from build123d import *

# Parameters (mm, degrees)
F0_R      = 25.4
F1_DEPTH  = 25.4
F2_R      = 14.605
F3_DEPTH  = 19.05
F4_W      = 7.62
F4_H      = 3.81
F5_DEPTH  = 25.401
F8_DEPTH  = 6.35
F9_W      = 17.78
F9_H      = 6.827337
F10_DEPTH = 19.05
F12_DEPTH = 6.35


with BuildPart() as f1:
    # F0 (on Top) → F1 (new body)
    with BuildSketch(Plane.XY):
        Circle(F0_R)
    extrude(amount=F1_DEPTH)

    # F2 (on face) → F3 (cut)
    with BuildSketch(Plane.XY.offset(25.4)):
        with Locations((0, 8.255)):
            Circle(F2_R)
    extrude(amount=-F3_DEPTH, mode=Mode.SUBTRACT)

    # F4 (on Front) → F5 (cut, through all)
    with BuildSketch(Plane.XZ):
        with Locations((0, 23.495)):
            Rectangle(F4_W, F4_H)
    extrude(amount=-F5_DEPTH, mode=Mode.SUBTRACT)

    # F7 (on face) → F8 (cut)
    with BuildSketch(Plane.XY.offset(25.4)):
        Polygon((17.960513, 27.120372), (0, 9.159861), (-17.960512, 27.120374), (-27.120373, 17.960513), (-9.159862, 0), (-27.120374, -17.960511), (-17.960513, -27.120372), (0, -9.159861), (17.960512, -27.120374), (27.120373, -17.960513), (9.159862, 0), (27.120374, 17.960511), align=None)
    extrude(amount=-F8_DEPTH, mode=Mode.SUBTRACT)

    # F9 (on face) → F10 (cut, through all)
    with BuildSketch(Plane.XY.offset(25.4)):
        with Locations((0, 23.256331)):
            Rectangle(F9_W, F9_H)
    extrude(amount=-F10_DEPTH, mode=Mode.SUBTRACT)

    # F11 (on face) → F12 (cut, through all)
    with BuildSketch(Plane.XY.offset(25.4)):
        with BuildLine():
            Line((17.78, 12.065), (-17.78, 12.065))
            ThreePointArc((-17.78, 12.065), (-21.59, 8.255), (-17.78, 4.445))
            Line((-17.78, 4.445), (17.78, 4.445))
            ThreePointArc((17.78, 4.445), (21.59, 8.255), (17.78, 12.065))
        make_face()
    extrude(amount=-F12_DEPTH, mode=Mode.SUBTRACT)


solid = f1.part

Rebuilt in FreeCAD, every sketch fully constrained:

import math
import FreeCAD as App
import Part
import Sketcher
from FreeCAD import Vector
Q = App.Units.Quantity


def add_polygon(sketch, points):
    """Adds a closed chain of lines whose ends are joined by coincident constraints."""
    first, n = sketch.GeometryCount, len(points)
    for a, b in zip(points, points[1:] + points[:1]):
        sketch.addGeometry(Part.LineSegment(App.Vector(*a, 0), App.Vector(*b, 0)), False)
    for i in range(n):
        sketch.addConstraint(Sketcher.Constraint("Coincident", first + i, 2, first + (i + 1) % n, 1))

doc = App.newDocument("Part")
body = doc.addObject("PartDesign::Body", "Body")

sketch1 = body.newObject("Sketcher::SketchObject", "Sketch")
sketch1.AttachmentSupport = (doc.getObject("XY_Plane"), [""])
sketch1.MapMode = "FlatFace"
sketch1.addGeometry(Part.Circle(Vector(0, 0, 0), Vector(0, 0, 1), 25), False)
sketch1.addConstraint(Sketcher.Constraint("Coincident", 0, 3, -1, 1))
sketch1.addConstraint(Sketcher.Constraint("Diameter", 0, Q("2 in")))
pad1 = body.newObject("PartDesign::Pad", "Pad")
pad1.Profile = sketch1
pad1.Length = Q("1 in")

sketch2 = body.newObject("Sketcher::SketchObject", "Sketch001")
sketch2.AttachmentSupport = (doc.getObject("XY_Plane"), [""])
sketch2.MapMode = "FlatFace"
sketch2.AttachmentOffset = App.Placement(Vector(0, 0, 1 * 25.4), App.Rotation())
sketch2.addGeometry(Part.Circle(Vector(0, 8, 0), Vector(0, 0, 1), 15), False)
sketch2.addConstraint(Sketcher.Constraint("PointOnObject", 0, 3, -2))
sketch2.addConstraint(Sketcher.Constraint("Diameter", 0, Q("1.15 in")))
sketch2.addConstraint(Sketcher.Constraint("DistanceY", -1, 1, 0, 3, Q("0.325 in")))
pocket1 = body.newObject("PartDesign::Pocket", "Pocket")
pocket1.Profile = sketch2
pocket1.Length = Q("0.75 in")

sketch3 = body.newObject("Sketcher::SketchObject", "Sketch002")
sketch3.AttachmentSupport = (doc.getObject("XZ_Plane"), [""])
sketch3.MapMode = "FlatFace"
add_polygon(sketch3, [(-3.8, 25.4), (-3.8, 21.6), (3.8, 21.6), (3.8, 25.4)])
sketch3.addConstraint(Sketcher.Constraint("Vertical", 0))
sketch3.addConstraint(Sketcher.Constraint("Horizontal", 1))
sketch3.addConstraint(Sketcher.Constraint("Vertical", 2))
sketch3.addConstraint(Sketcher.Constraint("Horizontal", 3))
sketch3.addConstraint(Sketcher.Constraint("DistanceX", 1, 1, 1, 2, Q("0.3 in")))
sketch3.addConstraint(Sketcher.Constraint("DistanceY", -1, 1, 2, 2, Q("1 in")))
sketch3.addConstraint(Sketcher.Constraint("DistanceY", 0, 2, 0, 1, Q("0.15 in")))
sketch3.addConstraint(Sketcher.Constraint("DistanceX", 0, 2, -1, 1, Q("0.15 in")))
pocket2 = body.newObject("PartDesign::Pocket", "Pocket001")
pocket2.Profile = sketch3
pocket2.Type = "ThroughAll"

sketch4 = body.newObject("Sketcher::SketchObject", "Sketch003")
sketch4.AttachmentSupport = (doc.getObject("XY_Plane"), [""])
sketch4.MapMode = "FlatFace"
sketch4.AttachmentOffset = App.Placement(Vector(0, 0, 1 * 25.4), App.Rotation())
add_polygon(sketch4, [(18, 27), (0, 9), (-18, 27), (-27, 18), (-9, 0), (-27, -18), (-18, -27), (0, -9), (18, -27), (27, -18), (9, 0), (27, 18)])
sketch4.addConstraint(Sketcher.Constraint("Symmetric", 0, 2, 6, 2, -1, 1))
sketch4.addConstraint(Sketcher.Constraint("Symmetric", 1, 2, 7, 2, -1, 1))
sketch4.addConstraint(Sketcher.Constraint("Symmetric", 2, 2, 8, 2, -1, 1))
sketch4.addConstraint(Sketcher.Constraint("Symmetric", 3, 2, 9, 2, -1, 1))
sketch4.addConstraint(Sketcher.Constraint("Symmetric", 4, 2, 10, 2, -1, 1))
sketch4.addConstraint(Sketcher.Constraint("Symmetric", 5, 2, 11, 2, -1, 1))
sketch4.addConstraint(Sketcher.Constraint("Symmetric", 5, 2, 7, 2, -2))
sketch4.addConstraint(Sketcher.Constraint("Symmetric", 4, 2, 8, 2, -2))
sketch4.addConstraint(Sketcher.Constraint("PointOnObject", 0, 2, -2))
sketch4.addConstraint(Sketcher.Constraint("PointOnObject", 3, 2, -1))
sketch4.addConstraint(Sketcher.Constraint("Perpendicular", 0, 1))
sketch4.addConstraint(Sketcher.Constraint("Perpendicular", 1, 2))
sketch4.addConstraint(Sketcher.Constraint("Perpendicular", 2, 3))
sketch4.addConstraint(Sketcher.Constraint("Equal", 1, 3))
sketch4.addConstraint(Sketcher.Constraint("Distance", 0, Q("1 in")))
sketch4.addConstraint(Sketcher.Constraint("Distance", 2, Q("0.51 in")))
pocket3 = body.newObject("PartDesign::Pocket", "Pocket002")
pocket3.Profile = sketch4
pocket3.Length = Q("0.25 in")

sketch5 = body.newObject("Sketcher::SketchObject", "Sketch004")
sketch5.AttachmentSupport = (doc.getObject("XY_Plane"), [""])
sketch5.MapMode = "FlatFace"
sketch5.AttachmentOffset = App.Placement(Vector(0, 0, 1 * 25.4), App.Rotation())
add_polygon(sketch5, [(-9, 27), (-9, 20), (9, 20), (9, 27)])
sketch5.addConstraint(Sketcher.Constraint("Vertical", 0))
sketch5.addConstraint(Sketcher.Constraint("Horizontal", 1))
sketch5.addConstraint(Sketcher.Constraint("Vertical", 2))
sketch5.addConstraint(Sketcher.Constraint("Horizontal", 3))
sketch5.addConstraint(Sketcher.Constraint("DistanceX", 1, 1, 1, 2, Q("0.7 in")))
sketch5.addConstraint(Sketcher.Constraint("DistanceX", 0, 2, -1, 1, Q("0.35 in")))
sketch5.addConstraint(Sketcher.Constraint("DistanceY", -1, 1, 2, 2, Q("1.05 in")))
sketch5.addConstraint(Sketcher.Constraint("DistanceY", 0, 2, 0, 1, Q("6.827337 mm")))
pocket4 = body.newObject("PartDesign::Pocket", "Pocket003")
pocket4.Profile = sketch5
pocket4.Length = Q("0.75 in")

sketch6 = body.newObject("Sketcher::SketchObject", "Sketch005")
sketch6.AttachmentSupport = (doc.getObject("XY_Plane"), [""])
sketch6.MapMode = "FlatFace"
sketch6.AttachmentOffset = App.Placement(Vector(0, 0, 1 * 25.4), App.Rotation())
sketch6.addGeometry(Part.LineSegment(Vector(17.8, 12.1, 0), Vector(-17.8, 12.1, 0)), False)
sketch6.addGeometry(Part.ArcOfCircle(Part.Circle(Vector(-17.8, 8.3, 0), Vector(0, 0, 1), 3.8), math.radians(90), math.radians(270)), False)
sketch6.addGeometry(Part.LineSegment(Vector(-17.8, 4.4, 0), Vector(17.8, 4.4, 0)), False)
sketch6.addGeometry(Part.ArcOfCircle(Part.Circle(Vector(17.8, 8.3, 0), Vector(0, 0, 1), 3.8), math.radians(-90), math.radians(90)), False)
sketch6.addConstraint(Sketcher.Constraint("Tangent", 0, 2, 1, 1))
sketch6.addConstraint(Sketcher.Constraint("Tangent", 1, 2, 2, 1))
sketch6.addConstraint(Sketcher.Constraint("Tangent", 2, 2, 3, 1))
sketch6.addConstraint(Sketcher.Constraint("Tangent", 3, 2, 0, 1))
sketch6.addConstraint(Sketcher.Constraint("Horizontal", 0))
sketch6.addConstraint(Sketcher.Constraint("Horizontal", 2))
sketch6.addConstraint(Sketcher.Constraint("Radius", 1, Q("0.15 in")))
sketch6.addConstraint(Sketcher.Constraint("DistanceX", 0, 2, 0, 1, Q("1.4 in")))
sketch6.addConstraint(Sketcher.Constraint("DistanceX", 1, 3, -1, 1, Q("0.7 in")))
sketch6.addConstraint(Sketcher.Constraint("DistanceY", -1, 1, 1, 3, Q("0.325 in")))
pocket5 = body.newObject("PartDesign::Pocket", "Pocket004")
pocket5.Profile = sketch6
pocket5.Length = Q("0.25 in")

doc.recompute()
